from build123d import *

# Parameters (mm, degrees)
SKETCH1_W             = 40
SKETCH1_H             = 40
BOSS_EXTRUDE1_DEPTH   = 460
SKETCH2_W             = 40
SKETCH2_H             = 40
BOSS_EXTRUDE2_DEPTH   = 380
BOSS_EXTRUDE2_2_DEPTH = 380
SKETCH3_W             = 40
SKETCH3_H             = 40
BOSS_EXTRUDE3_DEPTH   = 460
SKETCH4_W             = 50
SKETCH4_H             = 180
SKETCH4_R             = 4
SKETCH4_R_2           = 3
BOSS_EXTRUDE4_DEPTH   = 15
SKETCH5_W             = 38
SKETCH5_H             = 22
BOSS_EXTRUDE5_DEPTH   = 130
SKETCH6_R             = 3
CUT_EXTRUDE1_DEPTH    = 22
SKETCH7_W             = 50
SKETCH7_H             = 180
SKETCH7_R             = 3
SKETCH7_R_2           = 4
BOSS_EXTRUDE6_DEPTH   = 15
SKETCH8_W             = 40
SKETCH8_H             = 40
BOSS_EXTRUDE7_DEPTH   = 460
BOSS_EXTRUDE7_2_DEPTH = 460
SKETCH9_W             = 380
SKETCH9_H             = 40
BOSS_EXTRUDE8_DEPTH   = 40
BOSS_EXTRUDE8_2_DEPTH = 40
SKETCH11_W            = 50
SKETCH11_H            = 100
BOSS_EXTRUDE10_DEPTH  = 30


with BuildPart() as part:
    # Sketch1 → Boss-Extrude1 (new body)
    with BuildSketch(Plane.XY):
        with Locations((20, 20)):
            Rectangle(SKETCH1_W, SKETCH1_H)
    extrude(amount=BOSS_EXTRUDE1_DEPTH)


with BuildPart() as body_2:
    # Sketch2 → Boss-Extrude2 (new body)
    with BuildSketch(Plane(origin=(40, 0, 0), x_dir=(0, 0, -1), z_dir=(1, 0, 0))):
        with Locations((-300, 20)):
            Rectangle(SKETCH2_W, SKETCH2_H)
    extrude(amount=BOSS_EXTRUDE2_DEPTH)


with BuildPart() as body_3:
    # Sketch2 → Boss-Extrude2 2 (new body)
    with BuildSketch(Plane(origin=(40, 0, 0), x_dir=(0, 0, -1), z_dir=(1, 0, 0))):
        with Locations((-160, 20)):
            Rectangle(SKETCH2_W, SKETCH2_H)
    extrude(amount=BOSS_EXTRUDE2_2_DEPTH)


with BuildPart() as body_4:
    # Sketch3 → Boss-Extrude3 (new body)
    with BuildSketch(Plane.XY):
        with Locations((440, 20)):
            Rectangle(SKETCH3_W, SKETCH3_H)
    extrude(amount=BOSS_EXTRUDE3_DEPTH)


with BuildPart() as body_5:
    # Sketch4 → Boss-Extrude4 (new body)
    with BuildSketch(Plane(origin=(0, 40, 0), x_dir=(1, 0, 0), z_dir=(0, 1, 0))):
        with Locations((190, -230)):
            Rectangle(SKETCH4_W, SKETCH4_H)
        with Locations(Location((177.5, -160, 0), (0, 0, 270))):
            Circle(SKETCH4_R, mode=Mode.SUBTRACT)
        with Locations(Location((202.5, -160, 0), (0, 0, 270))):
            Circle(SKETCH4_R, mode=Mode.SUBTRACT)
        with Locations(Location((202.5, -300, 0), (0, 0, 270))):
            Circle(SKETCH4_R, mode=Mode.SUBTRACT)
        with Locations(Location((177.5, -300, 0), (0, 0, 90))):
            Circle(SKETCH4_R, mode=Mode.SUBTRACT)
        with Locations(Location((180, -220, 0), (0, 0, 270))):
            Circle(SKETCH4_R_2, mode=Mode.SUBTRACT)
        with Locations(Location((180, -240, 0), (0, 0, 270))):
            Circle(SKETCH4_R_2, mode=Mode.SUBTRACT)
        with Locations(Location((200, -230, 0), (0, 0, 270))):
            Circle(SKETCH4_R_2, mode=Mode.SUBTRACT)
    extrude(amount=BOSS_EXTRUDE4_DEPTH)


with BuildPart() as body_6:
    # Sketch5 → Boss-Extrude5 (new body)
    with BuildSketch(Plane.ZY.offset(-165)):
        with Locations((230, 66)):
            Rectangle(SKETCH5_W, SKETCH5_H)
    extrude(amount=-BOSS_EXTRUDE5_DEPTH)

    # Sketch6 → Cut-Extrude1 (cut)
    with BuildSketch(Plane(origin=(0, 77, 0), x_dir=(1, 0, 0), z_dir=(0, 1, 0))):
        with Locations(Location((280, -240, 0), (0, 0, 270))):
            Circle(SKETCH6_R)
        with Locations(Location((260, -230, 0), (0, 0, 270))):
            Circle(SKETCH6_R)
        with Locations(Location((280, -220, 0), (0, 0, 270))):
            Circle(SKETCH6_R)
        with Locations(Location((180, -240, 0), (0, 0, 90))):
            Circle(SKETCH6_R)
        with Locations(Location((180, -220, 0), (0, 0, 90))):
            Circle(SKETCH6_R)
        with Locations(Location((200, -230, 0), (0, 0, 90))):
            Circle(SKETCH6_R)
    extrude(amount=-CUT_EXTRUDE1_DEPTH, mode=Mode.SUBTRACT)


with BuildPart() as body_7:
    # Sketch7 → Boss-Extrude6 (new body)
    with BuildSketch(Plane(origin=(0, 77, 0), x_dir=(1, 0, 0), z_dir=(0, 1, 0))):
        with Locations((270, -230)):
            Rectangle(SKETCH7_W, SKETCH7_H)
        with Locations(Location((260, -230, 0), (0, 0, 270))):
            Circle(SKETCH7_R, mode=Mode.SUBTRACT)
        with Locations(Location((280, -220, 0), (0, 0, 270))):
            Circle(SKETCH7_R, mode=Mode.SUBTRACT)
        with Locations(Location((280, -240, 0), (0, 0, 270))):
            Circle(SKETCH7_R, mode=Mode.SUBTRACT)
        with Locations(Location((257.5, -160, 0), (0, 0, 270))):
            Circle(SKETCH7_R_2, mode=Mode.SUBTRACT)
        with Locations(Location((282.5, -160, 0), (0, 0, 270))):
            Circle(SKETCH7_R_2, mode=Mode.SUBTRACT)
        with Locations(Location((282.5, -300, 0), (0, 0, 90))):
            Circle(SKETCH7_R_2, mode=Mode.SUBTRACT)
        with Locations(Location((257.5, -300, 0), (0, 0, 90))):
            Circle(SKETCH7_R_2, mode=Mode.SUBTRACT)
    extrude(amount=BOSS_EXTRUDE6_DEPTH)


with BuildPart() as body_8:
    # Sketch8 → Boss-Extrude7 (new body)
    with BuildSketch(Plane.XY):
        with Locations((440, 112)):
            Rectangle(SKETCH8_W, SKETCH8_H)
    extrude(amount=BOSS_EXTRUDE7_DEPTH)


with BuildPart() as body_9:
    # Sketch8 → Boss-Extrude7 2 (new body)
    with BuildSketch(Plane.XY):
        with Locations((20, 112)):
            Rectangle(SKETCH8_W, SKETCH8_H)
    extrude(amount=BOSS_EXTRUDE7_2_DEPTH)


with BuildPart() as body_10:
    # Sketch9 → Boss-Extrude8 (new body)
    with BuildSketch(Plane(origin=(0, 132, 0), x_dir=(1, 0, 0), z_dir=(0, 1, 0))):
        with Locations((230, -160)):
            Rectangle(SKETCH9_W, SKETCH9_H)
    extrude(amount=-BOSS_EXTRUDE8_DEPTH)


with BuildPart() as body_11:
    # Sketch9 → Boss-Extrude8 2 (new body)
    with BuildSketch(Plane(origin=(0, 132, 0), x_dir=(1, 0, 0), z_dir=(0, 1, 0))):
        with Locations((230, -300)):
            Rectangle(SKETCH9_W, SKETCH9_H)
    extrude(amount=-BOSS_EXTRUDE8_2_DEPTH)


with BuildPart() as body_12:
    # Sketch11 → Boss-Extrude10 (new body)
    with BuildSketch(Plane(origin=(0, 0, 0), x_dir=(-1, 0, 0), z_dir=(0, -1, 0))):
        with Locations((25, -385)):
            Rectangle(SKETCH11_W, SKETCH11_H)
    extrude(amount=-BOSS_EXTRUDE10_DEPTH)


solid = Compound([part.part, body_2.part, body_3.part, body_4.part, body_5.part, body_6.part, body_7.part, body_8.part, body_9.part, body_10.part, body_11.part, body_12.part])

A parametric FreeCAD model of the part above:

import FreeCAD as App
import Part
import Sketcher


def add_polygon(sketch, points):
    """Adds a closed chain of lines whose ends are joined by coincident constraints."""
    first, n = sketch.GeometryCount, len(points)
    for a, b in zip(points, points[1:] + points[:1]):
        sketch.addGeometry(Part.LineSegment(App.Vector(*a, 0), App.Vector(*b, 0)), False)
    for i in range(n):
        sketch.addConstraint(Sketcher.Constraint("Coincident", first + i, 2, first + (i + 1) % n, 1))

doc = App.newDocument("Part")
body = doc.addObject("PartDesign::Body", "Body")

# Sketch on XY plane
sketch1 = body.newObject("Sketcher::SketchObject", "Sketch")
sketch1.AttachmentSupport = (doc.getObject("XY_Plane"), [""])
sketch1.MapMode = "FlatFace"
add_polygon(sketch1, [(0, 40), (0, 0), (40, 0), (40, 40)])  # lines 0-3
sketch1.addConstraint(Sketcher.Constraint("Vertical", 0))
sketch1.addConstraint(Sketcher.Constraint("Horizontal", 1))
sketch1.addConstraint(Sketcher.Constraint("Vertical", 2))
sketch1.addConstraint(Sketcher.Constraint("Horizontal", 3))
sketch1.addConstraint(Sketcher.Constraint("Coincident", 0, 2, -1, 1))
sketch1.addConstraint(Sketcher.Constraint("Equal", 3, 0))
sketch1.addConstraint(Sketcher.Constraint("DistanceX", 1, 1, 1, 2, 40.0))
pad1 = body.newObject("PartDesign::Pad", "Pad")
pad1.Profile = sketch1
pad1.Length = 460
body2 = doc.addObject("PartDesign::Body", "Body001")

# Sketch on YZ plane
sketch2 = body2.newObject("Sketcher::SketchObject", "Sketch001")
sketch2.AttachmentSupport = (doc.getObject("YZ_Plane001"), [""])
sketch2.MapMode = "FlatFace"
sketch2.AttachmentOffset = App.Placement(App.Vector(0, 0, 40), App.Rotation())
add_polygon(sketch2, [(40, 320), (0, 320), (0, 280), (40, 280)])  # lines 0-3
sketch2.addConstraint(Sketcher.Constraint("Horizontal", 0))
sketch2.addConstraint(Sketcher.Constraint("Vertical", 1))
sketch2.addConstraint(Sketcher.Constraint("Horizontal", 2))
sketch2.addConstraint(Sketcher.Constraint("Vertical", 3))
sketch2.addConstraint(Sketcher.Constraint("PointOnObject", 0, 2, -2))
sketch2.addConstraint(Sketcher.Constraint("Equal", 2, 1))
sketch2.addConstraint(Sketcher.Constraint("DistanceX", 0, 2, 0, 1, 40.0))
sketch2.addConstraint(Sketcher.Constraint("DistanceY", -1, 1, 0, 2, 320.0))
pad2 = body2.newObject("PartDesign::Pad", "Pad001")
pad2.Profile = sketch2
pad2.Length = 380
body3 = doc.addObject("PartDesign::Body", "Body002")

# Sketch on YZ plane
sketch3 = body3.newObject("Sketcher::SketchObject", "Sketch002")
sketch3.AttachmentSupport = (doc.getObject("YZ_Plane002"), [""])
sketch3.MapMode = "FlatFace"
sketch3.AttachmentOffset = App.Placement(App.Vector(0, 0, 40), App.Rotation())
add_polygon(sketch3, [(40, 180), (0, 180), (0, 140), (40, 140)])  # lines 0-3
sketch3.addConstraint(Sketcher.Constraint("Horizontal", 0))
sketch3.addConstraint(Sketcher.Constraint("Vertical", 1))
sketch3.addConstraint(Sketcher.Constraint("Horizontal", 2))
sketch3.addConstraint(Sketcher.Constraint("Vertical", 3))
sketch3.addConstraint(Sketcher.Constraint("PointOnObject", 0, 2, -2))
sketch3.addConstraint(Sketcher.Constraint("Equal", 2, 1))
sketch3.addConstraint(Sketcher.Constraint("DistanceX", 0, 2, 0, 1, 40.0))
sketch3.addConstraint(Sketcher.Constraint("DistanceY", -1, 1, 0, 2, 180.0))
pad3 = body3.newObject("PartDesign::Pad", "Pad002")
pad3.Profile = sketch3
pad3.Length = 380
body4 = doc.addObject("PartDesign::Body", "Body003")

# Sketch on XY plane
sketch4 = body4.newObject("Sketcher::SketchObject", "Sketch003")
sketch4.AttachmentSupport = (doc.getObject("XY_Plane003"), [""])
sketch4.MapMode = "FlatFace"
add_polygon(sketch4, [(420, 40), (420, 0), (460, 0), (460, 40)])  # lines 0-3
sketch4.addConstraint(Sketcher.Constraint("Vertical", 0))
sketch4.addConstraint(Sketcher.Constraint("Horizontal", 1))
sketch4.addConstraint(Sketcher.Constraint("Vertical", 2))
sketch4.addConstraint(Sketcher.Constraint("Horizontal", 3))
sketch4.addConstraint(Sketcher.Constraint("PointOnObject", 0, 2, -1))
sketch4.addConstraint(Sketcher.Constraint("Equal", 3, 0))
sketch4.addConstraint(Sketcher.Constraint("DistanceX", 1, 1, 1, 2, 40.0))
sketch4.addConstraint(Sketcher.Constraint("DistanceX", -1, 1, 0, 2, 420.0))
pad4 = body4.newObject("PartDesign::Pad", "Pad003")
pad4.Profile = sketch4
pad4.Length = 460
body5 = doc.addObject("PartDesign::Body", "Body004")

# Sketch on XZ plane
sketch5 = body5.newObject("Sketcher::SketchObject", "Sketch004")
sketch5.AttachmentSupport = (doc.getObject("XZ_Plane004"), [""])
sketch5.MapMode = "FlatFace"
sketch5.AttachmentOffset = App.Placement(App.Vector(0, 0, -40), App.Rotation())
add_polygon(sketch5, [(165, 140), (165, 320), (215, 320), (215, 140)])  # lines 0-3
sketch5.addGeometry(Part.Circle(App.Vector(177.5, 300, 0), App.Vector(0, 0, 1), 4), False)  # 4
sketch5.addGeometry(Part.Circle(App.Vector(180, 240, 0), App.Vector(0, 0, 1), 3), False)  # 5
sketch5.addGeometry(Part.Circle(App.Vector(202.5, 300, 0), App.Vector(0, 0, 1), 4), False)  # 6
sketch5.addGeometry(Part.Circle(App.Vector(180, 220, 0), App.Vector(0, 0, 1), 3), False)  # 7
sketch5.addGeometry(Part.Circle(App.Vector(177.5, 160, 0), App.Vector(0, 0, 1), 4), False)  # 8
sketch5.addGeometry(Part.Circle(App.Vector(200, 230, 0), App.Vector(0, 0, 1), 3), False)  # 9
sketch5.addGeometry(Part.Circle(App.Vector(202.5, 160, 0), App.Vector(0, 0, 1), 4), False)  # 10
sketch5.addConstraint(Sketcher.Constraint("Vertical", 0))
sketch5.addConstraint(Sketcher.Constraint("Horizontal", 1))
sketch5.addConstraint(Sketcher.Constraint("Vertical", 2))
sketch5.addConstraint(Sketcher.Constraint("Horizontal", 3))
sketch5.addConstraint(Sketcher.Constraint("Equal", 4, 6))
sketch5.addConstraint(Sketcher.Constraint("Equal", 5, 7))
sketch5.addConstraint(Sketcher.Constraint("Equal", 6, 8))
sketch5.addConstraint(Sketcher.Constraint("Equal", 7, 9))
sketch5.addConstraint(Sketcher.Constraint("Equal", 8, 10))
sketch5.addConstraint(Sketcher.Constraint("Horizontal", 4, 3, 6, 3))
sketch5.addConstraint(Sketcher.Constraint("Horizontal", 8, 3, 10, 3))
sketch5.addConstraint(Sketcher.Constraint("Vertical", 5, 3, 7, 3))
sketch5.addConstraint(Sketcher.Constraint("Vertical", 4, 3, 8, 3))
sketch5.addConstraint(Sketcher.Constraint("Vertical", 6, 3, 10, 3))
sketch5.addConstraint(Sketcher.Constraint("Diameter", 4, 8.0))
sketch5.addConstraint(Sketcher.Constraint("Diameter", 5, 6.0))
sketch5.addConstraint(Sketcher.Constraint("DistanceX", 1, 1, 1, 2, 50.0))
sketch5.addConstraint(Sketcher.Constraint("DistanceY", 0, 1, 0, 2, 180.0))
sketch5.addConstraint(Sketcher.Constraint("DistanceY", -1, 1, 4, 3, 300.0))
sketch5.addConstraint(Sketcher.Constraint("DistanceX", -1, 1, 5, 3, 180.0))
sketch5.addConstraint(Sketcher.Constraint("DistanceY", -1, 1, 5, 3, 240.0))
sketch5.addConstraint(Sketcher.Constraint("DistanceY", -1, 1, 7, 3, 220.0))
sketch5.addConstraint(Sketcher.Constraint("DistanceY", -1, 1, 8, 3, 160.0))
sketch5.addConstraint(Sketcher.Constraint("DistanceX", -1, 1, 9, 3, 200.0))
sketch5.addConstraint(Sketcher.Constraint("DistanceY", -1, 1, 9, 3, 230.0))
sketch5.addConstraint(Sketcher.Constraint("DistanceX", -1, 1, 0, 2, 165.0))
sketch5.addConstraint(Sketcher.Constraint("DistanceY", -1, 1, 0, 2, 320.0))
sketch5.addConstraint(Sketcher.Constraint("DistanceX", 4, 3, 6, 3, 25.0))
sketch5.addConstraint(Sketcher.Constraint("DistanceX", -1, 1, 4, 3, 177.5))
pad5 = body5.newObject("PartDesign::Pad", "Pad004")
pad5.Profile = sketch5
pad5.Length = 15
pad5.Reversed = True
body6 = doc.addObject("PartDesign::Body", "Body005")

# Sketch on YZ plane
sketch6 = body6.newObject("Sketcher::SketchObject", "Sketch005")
sketch6.AttachmentSupport = (doc.getObject("YZ_Plane005"), [""])
sketch6.MapMode = "FlatFace"
sketch6.AttachmentOffset = App.Placement(App.Vector(0, 0, 165), App.Rotation())
add_polygon(sketch6, [(77, 211), (55, 211), (55, 249), (77, 249)])  # lines 0-3
sketch6.addConstraint(Sketcher.Constraint("Horizontal", 0))
sketch6.addConstraint(Sketcher.Constraint("Vertical", 1))
sketch6.addConstraint(Sketcher.Constraint("Horizontal", 2))
sketch6.addConstraint(Sketcher.Constraint("Vertical", 3))
sketch6.addConstraint(Sketcher.Constraint("DistanceX", 0, 2, 0, 1, 22.0))
sketch6.addConstraint(Sketcher.Constraint("DistanceY", 1, 1, 1, 2, 38.0))
sketch6.addConstraint(Sketcher.Constraint("DistanceX", -1, 1, 0, 2, 55.0))
sketch6.addConstraint(Sketcher.Constraint("DistanceY", -1, 1, 0, 2, 211.0))
pad6 = body6.newObject("PartDesign::Pad", "Pad005")
pad6.Profile = sketch6
pad6.Length = 130

# Sketch on XZ plane
sketch7 = body6.newObject("Sketcher::SketchObject", "Sketch006")
sketch7.AttachmentSupport = (doc.getObject("XZ_Plane005"), [""])
sketch7.MapMode = "FlatFace"
sketch7.AttachmentOffset = App.Placement(App.Vector(0, 0, -77), App.Rotation())
sketch7.addGeometry(Part.Circle(App.Vector(280, 240, 0), App.Vector(0, 0, 1), 3), False)
sketch7.addGeometry(Part.Circle(App.Vector(260, 230, 0), App.Vector(0, 0, 1), 3), False)
sketch7.addGeometry(Part.Circle(App.Vector(280, 220, 0), App.Vector(0, 0, 1), 3), False)
sketch7.addGeometry(Part.Circle(App.Vector(180, 240, 0), App.Vector(0, 0, 1), 3), False)
sketch7.addGeometry(Part.Circle(App.Vector(180, 220, 0), App.Vector(0, 0, 1), 3), False)
sketch7.addGeometry(Part.Circle(App.Vector(200, 230, 0), App.Vector(0, 0, 1), 3), False)
sketch7.addConstraint(Sketcher.Constraint("Equal", 0, 1))
sketch7.addConstraint(Sketcher.Constraint("Equal", 1, 2))
sketch7.addConstraint(Sketcher.Constraint("Equal", 2, 3))
sketch7.addConstraint(Sketcher.Constraint("Equal", 3, 4))
sketch7.addConstraint(Sketcher.Constraint("Equal", 4, 5))
sketch7.addConstraint(Sketcher.Constraint("Horizontal", 0, 3, 3, 3))
sketch7.addConstraint(Sketcher.Constraint("Horizontal", 2, 3, 4, 3))
sketch7.addConstraint(Sketcher.Constraint("Horizontal", 1, 3, 5, 3))
sketch7.addConstraint(Sketcher.Constraint("Vertical", 0, 3, 2, 3))
sketch7.addConstraint(Sketcher.Constraint("Vertical", 3, 3, 4, 3))
sketch7.addConstraint(Sketcher.Constraint("Diameter", 0, 6.0))
sketch7.addConstraint(Sketcher.Constraint("DistanceX", -1, 1, 0, 3, 280.0))
sketch7.addConstraint(Sketcher.Constraint("DistanceY", -1, 1, 0, 3, 240.0))
sketch7.addConstraint(Sketcher.Constraint("DistanceX", -1, 1, 1, 3, 260.0))
sketch7.addConstraint(Sketcher.Constraint("DistanceY", -1, 1, 1, 3, 230.0))
sketch7.addConstraint(Sketcher.Constraint("DistanceY", -1, 1, 2, 3, 220.0))
sketch7.addConstraint(Sketcher.Constraint("DistanceX", -1, 1, 3, 3, 180.0))
sketch7.addConstraint(Sketcher.Constraint("DistanceX", -1, 1, 5, 3, 200.0))
pocket1 = body6.newObject("PartDesign::Pocket", "Pocket")
pocket1.Profile = sketch7
pocket1.Length = 22
pocket1.Reversed = True
body7 = doc.addObject("PartDesign::Body", "Body006")

# Sketch on XZ plane
sketch8 = body7.newObject("Sketcher::SketchObject", "Sketch007")
sketch8.AttachmentSupport = (doc.getObject("XZ_Plane006"), [""])
sketch8.MapMode = "FlatFace"
sketch8.AttachmentOffset = App.Placement(App.Vector(0, 0, -77), App.Rotation())
add_polygon(sketch8, [(245, 140), (245, 320), (295, 320), (295, 140)])  # lines 0-3
sketch8.addGeometry(Part.Circle(App.Vector(257.5, 300, 0), App.Vector(0, 0, 1), 4), False)  # 4
sketch8.addGeometry(Part.Circle(App.Vector(282.5, 300, 0), App.Vector(0, 0, 1), 4), False)  # 5
sketch8.addGeometry(Part.Circle(App.Vector(280, 240, 0), App.Vector(0, 0, 1), 3), False)  # 6
sketch8.addGeometry(Part.Circle(App.Vector(260, 230, 0), App.Vector(0, 0, 1), 3), False)  # 7
sketch8.addGeometry(Part.Circle(App.Vector(257.5, 160, 0), App.Vector(0, 0, 1), 4), False)  # 8
sketch8.addGeometry(Part.Circle(App.Vector(280, 220, 0), App.Vector(0, 0, 1), 3), False)  # 9
sketch8.addGeometry(Part.Circle(App.Vector(282.5, 160, 0), App.Vector(0, 0, 1), 4), False)  # 10
sketch8.addConstraint(Sketcher.Constraint("Vertical", 0))
sketch8.addConstraint(Sketcher.Constraint("Horizontal", 1))
sketch8.addConstraint(Sketcher.Constraint("Vertical", 2))
sketch8.addConstraint(Sketcher.Constraint("Horizontal", 3))
sketch8.addConstraint(Sketcher.Constraint("Equal", 4, 5))
sketch8.addConstraint(Sketcher.Constraint("Equal", 6, 7))
sketch8.addConstraint(Sketcher.Constraint("Equal", 5, 8))
sketch8.addConstraint(Sketcher.Constraint("Equal", 7, 9))
sketch8.addConstraint(Sketcher.Constraint("Equal", 8, 10))
sketch8.addConstraint(Sketcher.Constraint("Horizontal", 4, 3, 5, 3))
sketch8.addConstraint(Sketcher.Constraint("Horizontal", 8, 3, 10, 3))
sketch8.addConstraint(Sketcher.Constraint("Vertical", 4, 3, 8, 3))
sketch8.addConstraint(Sketcher.Constraint("Vertical", 6, 3, 9, 3))
sketch8.addConstraint(Sketcher.Constraint("Vertical", 5, 3, 10, 3))
sketch8.addConstraint(Sketcher.Constraint("Diameter", 4, 8.0))
sketch8.addConstraint(Sketcher.Constraint("Diameter", 6, 6.0))
sketch8.addConstraint(Sketcher.Constraint("DistanceX", 1, 1, 1, 2, 50.0))
sketch8.addConstraint(Sketcher.Constraint("DistanceY", 0, 1, 0, 2, 180.0))
sketch8.addConstraint(Sketcher.Constraint("DistanceY", -1, 1, 4, 3, 300.0))
sketch8.addConstraint(Sketcher.Constraint("DistanceX", -1, 1, 6, 3, 280.0))
sketch8.addConstraint(Sketcher.Constraint("DistanceY", -1, 1, 6, 3, 240.0))
sketch8.addConstraint(Sketcher.Constraint("DistanceX", -1, 1, 7, 3, 260.0))
sketch8.addConstraint(Sketcher.Constraint("DistanceY", -1, 1, 7, 3, 230.0))
sketch8.addConstraint(Sketcher.Constraint("DistanceY", -1, 1, 8, 3, 160.0))
sketch8.addConstraint(Sketcher.Constraint("DistanceY", -1, 1, 9, 3, 220.0))
sketch8.addConstraint(Sketcher.Constraint("DistanceX", -1, 1, 0, 2, 245.0))
sketch8.addConstraint(Sketcher.Constraint("DistanceY", -1, 1, 0, 2, 320.0))
sketch8.addConstraint(Sketcher.Constraint("DistanceX", 4, 3, 5, 3, 25.0))
sketch8.addConstraint(Sketcher.Constraint("DistanceX", -1, 1, 4, 3, 257.5))
pad7 = body7.newObject("PartDesign::Pad", "Pad006")
pad7.Profile = sketch8
pad7.Length = 15
pad7.Reversed = True
body8 = doc.addObject("PartDesign::Body", "Body007")

# Sketch on XY plane
sketch9 = body8.newObject("Sketcher::SketchObject", "Sketch008")
sketch9.AttachmentSupport = (doc.getObject("XY_Plane007"), [""])
sketch9.MapMode = "FlatFace"
add_polygon(sketch9, [(420, 132), (420, 92), (460, 92), (460, 132)])  # lines 0-3
sketch9.addConstraint(Sketcher.Constraint("Vertical", 0))
sketch9.addConstraint(Sketcher.Constraint("Horizontal", 1))
sketch9.addConstraint(Sketcher.Constraint("Vertical", 2))
sketch9.addConstraint(Sketcher.Constraint("Horizontal", 3))
sketch9.addConstraint(Sketcher.Constraint("Equal", 3, 0))
sketch9.addConstraint(Sketcher.Constraint("DistanceX", 1, 1, 1, 2, 40.0))
sketch9.addConstraint(Sketcher.Constraint("DistanceX", -1, 1, 0, 2, 420.0))
sketch9.addConstraint(Sketcher.Constraint("DistanceY", -1, 1, 0, 2, 92.0))
pad8 = body8.newObject("PartDesign::Pad", "Pad007")
pad8.Profile = sketch9
pad8.Length = 460
body9 = doc.addObject("PartDesign::Body", "Body008")

# Sketch on XY plane
sketch10 = body9.newObject("Sketcher::SketchObject", "Sketch009")
sketch10.AttachmentSupport = (doc.getObject("XY_Plane008"), [""])
sketch10.MapMode = "FlatFace"
add_polygon(sketch10, [(0, 132), (0, 92), (40, 92), (40, 132)])  # lines 0-3
sketch10.addConstraint(Sketcher.Constraint("Vertical", 0))
sketch10.addConstraint(Sketcher.Constraint("Horizontal", 1))
sketch10.addConstraint(Sketcher.Constraint("Vertical", 2))
sketch10.addConstraint(Sketcher.Constraint("Horizontal", 3))
sketch10.addConstraint(Sketcher.Constraint("PointOnObject", 0, 2, -2))
sketch10.addConstraint(Sketcher.Constraint("Equal", 3, 0))
sketch10.addConstraint(Sketcher.Constraint("DistanceX", 1, 1, 1, 2, 40.0))
sketch10.addConstraint(Sketcher.Constraint("DistanceY", -1, 1, 0, 2, 92.0))
pad9 = body9.newObject("PartDesign::Pad", "Pad008")
pad9.Profile = sketch10
pad9.Length = 460
body10 = doc.addObject("PartDesign::Body", "Body009")

# Sketch on XZ plane
sketch11 = body10.newObject("Sketcher::SketchObject", "Sketch010")
sketch11.AttachmentSupport = (doc.getObject("XZ_Plane009"), [""])
sketch11.MapMode = "FlatFace"
sketch11.AttachmentOffset = App.Placement(App.Vector(0, 0, -132), App.Rotation())
add_polygon(sketch11, [(40, 140), (40, 180), (420, 180), (420, 140)])  # lines 0-3
sketch11.addConstraint(Sketcher.Constraint("Vertical", 0))
sketch11.addConstraint(Sketcher.Constraint("Horizontal", 1))
sketch11.addConstraint(Sketcher.Constraint("Vertical", 2))
sketch11.addConstraint(Sketcher.Constraint("Horizontal", 3))
sketch11.addConstraint(Sketcher.Constraint("DistanceX", 1, 1, 1, 2, 380.0))
sketch11.addConstraint(Sketcher.Constraint("DistanceY", 0, 1, 0, 2, 40.0))
sketch11.addConstraint(Sketcher.Constraint("DistanceX", -1, 1, 0, 2, 40.0))
sketch11.addConstraint(Sketcher.Constraint("DistanceY", -1, 1, 0, 2, 180.0))
pad10 = body10.newObject("PartDesign::Pad", "Pad009")
pad10.Profile = sketch11
pad10.Length = 40
body11 = doc.addObject("PartDesign::Body", "Body010")

# Sketch on XZ plane
sketch12 = body11.newObject("Sketcher::SketchObject", "Sketch011")
sketch12.AttachmentSupport = (doc.getObject("XZ_Plane010"), [""])
sketch12.MapMode = "FlatFace"
sketch12.AttachmentOffset = App.Placement(App.Vector(0, 0, -132), App.Rotation())
add_polygon(sketch12, [(40, 280), (40, 320), (420, 320), (420, 280)])  # lines 0-3
sketch12.addConstraint(Sketcher.Constraint("Vertical", 0))
sketch12.addConstraint(Sketcher.Constraint("Horizontal", 1))
sketch12.addConstraint(Sketcher.Constraint("Vertical", 2))
sketch12.addConstraint(Sketcher.Constraint("Horizontal", 3))
sketch12.addConstraint(Sketcher.Constraint("DistanceX", 1, 1, 1, 2, 380.0))
sketch12.addConstraint(Sketcher.Constraint("DistanceY", 0, 1, 0, 2, 40.0))
sketch12.addConstraint(Sketcher.Constraint("DistanceX", -1, 1, 0, 2, 40.0))
sketch12.addConstraint(Sketcher.Constraint("DistanceY", -1, 1, 0, 2, 320.0))
pad11 = body11.newObject("PartDesign::Pad", "Pad010")
pad11.Profile = sketch12
pad11.Length = 40
body12 = doc.addObject("PartDesign::Body", "Body011")

# Sketch on XZ plane
sketch13 = body12.newObject("Sketcher::SketchObject", "Sketch012")
sketch13.AttachmentSupport = (doc.getObject("XZ_Plane011"), [""])
sketch13.MapMode = "FlatFace"
add_polygon(sketch13, [(0, 335), (0, 435), (-50, 435), (-50, 335)])  # lines 0-3
sketch13.addConstraint(Sketcher.Constraint("Vertical", 0))
sketch13.addConstraint(Sketcher.Constraint("Horizontal", 1))
sketch13.addConstraint(Sketcher.Constraint("Vertical", 2))
sketch13.addConstraint(Sketcher.Constraint("Horizontal", 3))
sketch13.addConstraint(Sketcher.Constraint("PointOnObject", 0, 2, -2))
sketch13.addConstraint(Sketcher.Constraint("DistanceX", 1, 2, 1, 1, 50.0))
sketch13.addConstraint(Sketcher.Constraint("DistanceY", 0, 1, 0, 2, 100.0))
sketch13.addConstraint(Sketcher.Constraint("DistanceY", -1, 1, 0, 2, 435.0))
pad12 = body12.newObject("PartDesign::Pad", "Pad011")
pad12.Profile = sketch13
pad12.Length = 30
pad12.Reversed = True

doc.recompute()
